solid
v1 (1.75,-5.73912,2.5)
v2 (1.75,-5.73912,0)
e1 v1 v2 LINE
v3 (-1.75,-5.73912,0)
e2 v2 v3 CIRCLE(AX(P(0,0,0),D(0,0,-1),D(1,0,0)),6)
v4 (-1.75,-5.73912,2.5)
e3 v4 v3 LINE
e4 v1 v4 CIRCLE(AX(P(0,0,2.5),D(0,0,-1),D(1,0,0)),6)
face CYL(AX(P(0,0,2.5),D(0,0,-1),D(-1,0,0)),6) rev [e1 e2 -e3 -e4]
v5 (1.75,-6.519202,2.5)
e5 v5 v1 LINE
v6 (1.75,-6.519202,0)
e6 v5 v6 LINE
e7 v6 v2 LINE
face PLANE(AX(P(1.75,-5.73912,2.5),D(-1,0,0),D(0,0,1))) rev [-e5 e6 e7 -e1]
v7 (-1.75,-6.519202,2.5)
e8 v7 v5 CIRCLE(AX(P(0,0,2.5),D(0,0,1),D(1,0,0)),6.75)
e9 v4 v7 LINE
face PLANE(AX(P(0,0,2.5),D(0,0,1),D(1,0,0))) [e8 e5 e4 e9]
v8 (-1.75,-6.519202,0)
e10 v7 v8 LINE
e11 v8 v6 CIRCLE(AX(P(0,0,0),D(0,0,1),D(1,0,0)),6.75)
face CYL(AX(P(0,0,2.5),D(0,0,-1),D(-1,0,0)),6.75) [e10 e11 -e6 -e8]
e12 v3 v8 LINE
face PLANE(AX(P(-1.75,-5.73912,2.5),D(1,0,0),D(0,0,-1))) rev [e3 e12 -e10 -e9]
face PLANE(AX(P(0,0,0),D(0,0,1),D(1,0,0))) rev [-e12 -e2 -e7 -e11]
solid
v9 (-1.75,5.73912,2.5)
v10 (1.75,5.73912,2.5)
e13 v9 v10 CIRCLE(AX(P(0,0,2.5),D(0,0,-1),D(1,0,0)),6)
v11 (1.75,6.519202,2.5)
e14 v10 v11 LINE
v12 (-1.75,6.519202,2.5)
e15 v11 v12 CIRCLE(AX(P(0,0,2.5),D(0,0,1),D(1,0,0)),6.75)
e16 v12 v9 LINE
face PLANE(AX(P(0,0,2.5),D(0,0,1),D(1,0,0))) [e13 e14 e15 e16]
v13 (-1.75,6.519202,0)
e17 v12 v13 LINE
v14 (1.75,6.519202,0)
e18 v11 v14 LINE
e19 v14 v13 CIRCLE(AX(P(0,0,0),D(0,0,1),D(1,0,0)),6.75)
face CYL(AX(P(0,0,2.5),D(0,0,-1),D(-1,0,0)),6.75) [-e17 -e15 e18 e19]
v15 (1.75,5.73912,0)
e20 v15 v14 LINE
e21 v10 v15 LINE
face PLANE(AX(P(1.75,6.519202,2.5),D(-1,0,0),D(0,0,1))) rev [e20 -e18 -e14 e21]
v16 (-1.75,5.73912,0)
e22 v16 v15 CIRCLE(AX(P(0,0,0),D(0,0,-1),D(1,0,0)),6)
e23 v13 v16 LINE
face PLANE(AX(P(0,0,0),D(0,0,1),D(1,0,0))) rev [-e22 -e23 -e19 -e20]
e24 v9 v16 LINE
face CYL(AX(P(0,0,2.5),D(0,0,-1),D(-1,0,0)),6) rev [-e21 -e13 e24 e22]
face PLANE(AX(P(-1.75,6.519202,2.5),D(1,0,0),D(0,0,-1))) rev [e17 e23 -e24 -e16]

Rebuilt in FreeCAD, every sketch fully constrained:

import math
import FreeCAD as App
import Part
import Sketcher

doc = App.newDocument("Part")
body = doc.addObject("PartDesign::Body", "Body")

sketch1 = body.newObject("Sketcher::SketchObject", "Sketch")
sketch1.AttachmentSupport = (doc.getObject("XY_Plane"), [""])
sketch1.MapMode = "FlatFace"
sketch1.addGeometry([
    Part.LineSegment(App.Vector(1.8, 5.7, 0), App.Vector(1.8, 6.5, 0)),
    Part.ArcOfCircle(Part.Circle(App.Vector(0, 0, 0), App.Vector(0, 0, 1), 6.7), math.radians(75), math.radians(105)),
    Part.LineSegment(App.Vector(-1.8, 6.5, 0), App.Vector(-1.8, 5.7, 0)),
    Part.ArcOfCircle(Part.Circle(App.Vector(0, 0, 0), App.Vector(0, 0, 1), 6), math.radians(73), math.radians(107)),
], False)
sketch1.addConstraint([
    Sketcher.Constraint("Coincident", 0, 2, 1, 1),
    Sketcher.Constraint("Coincident", 1, 2, 2, 1),
    Sketcher.Constraint("Coincident", 2, 2, 3, 2),
    Sketcher.Constraint("Coincident", 3, 1, 0, 1),
    Sketcher.Constraint("Vertical", 0),
    Sketcher.Constraint("Vertical", 2),
    Sketcher.Constraint("Coincident", 1, 3, -1, 1),
    Sketcher.Constraint("Coincident", 3, 3, -1, 1),
    Sketcher.Constraint("Horizontal", 0, 2, 1, 2),
    Sketcher.Constraint("Radius", 3, 6.0),
    Sketcher.Constraint("Radius", 1, 6.75),
    Sketcher.Constraint("DistanceX", 1, 2, 0, 2, 3.5),
])
pad1 = body.newObject("PartDesign::Pad", "Pad")
pad1.Profile = sketch1
pad1.Length = 2.5
body2 = doc.addObject("PartDesign::Body", "Body001")

sketch2 = body2.newObject("Sketcher::SketchObject", "Sketch001")
sketch2.AttachmentSupport = (doc.getObject("XY_Plane001"), [""])
sketch2.MapMode = "FlatFace"
sketch2.addGeometry([
    Part.LineSegment(App.Vector(-1.8, -5.7, 0), App.Vector(-1.8, -6.5, 0)),
    Part.ArcOfCircle(Part.Circle(App.Vector(0, 0, 0), App.Vector(0, 0, 1), 6.7), math.radians(-105), math.radians(-75)),
    Part.LineSegment(App.Vector(1.8, -6.5, 0), App.Vector(1.8, -5.7, 0)),
    Part.ArcOfCircle(Part.Circle(App.Vector(0, 0, 0), App.Vector(0, 0, 1), 6), math.radians(-107), math.radians(-73)),
], False)
sketch2.addConstraint([
    Sketcher.Constraint("Coincident", 0, 2, 1, 1),
    Sketcher.Constraint("Coincident", 1, 2, 2, 1),
    Sketcher.Constraint("Coincident", 2, 2, 3, 2),
    Sketcher.Constraint("Coincident", 3, 1, 0, 1),
    Sketcher.Constraint("Vertical", 0),
    Sketcher.Constraint("Vertical", 2),
    Sketcher.Constraint("Coincident", 1, 3, -1, 1),
    Sketcher.Constraint("Coincident", 3, 3, -1, 1),
    Sketcher.Constraint("Horizontal", 0, 2, 1, 2),
    Sketcher.Constraint("Radius", 3, 6.0),
    Sketcher.Constraint("Radius", 1, 6.75),
    Sketcher.Constraint("DistanceX", 0, 2, 1, 2, 3.5),
])
pad2 = body2.newObject("PartDesign::Pad", "Pad001")
pad2.Profile = sketch2
pad2.Length = 2.5

doc.recompute()
